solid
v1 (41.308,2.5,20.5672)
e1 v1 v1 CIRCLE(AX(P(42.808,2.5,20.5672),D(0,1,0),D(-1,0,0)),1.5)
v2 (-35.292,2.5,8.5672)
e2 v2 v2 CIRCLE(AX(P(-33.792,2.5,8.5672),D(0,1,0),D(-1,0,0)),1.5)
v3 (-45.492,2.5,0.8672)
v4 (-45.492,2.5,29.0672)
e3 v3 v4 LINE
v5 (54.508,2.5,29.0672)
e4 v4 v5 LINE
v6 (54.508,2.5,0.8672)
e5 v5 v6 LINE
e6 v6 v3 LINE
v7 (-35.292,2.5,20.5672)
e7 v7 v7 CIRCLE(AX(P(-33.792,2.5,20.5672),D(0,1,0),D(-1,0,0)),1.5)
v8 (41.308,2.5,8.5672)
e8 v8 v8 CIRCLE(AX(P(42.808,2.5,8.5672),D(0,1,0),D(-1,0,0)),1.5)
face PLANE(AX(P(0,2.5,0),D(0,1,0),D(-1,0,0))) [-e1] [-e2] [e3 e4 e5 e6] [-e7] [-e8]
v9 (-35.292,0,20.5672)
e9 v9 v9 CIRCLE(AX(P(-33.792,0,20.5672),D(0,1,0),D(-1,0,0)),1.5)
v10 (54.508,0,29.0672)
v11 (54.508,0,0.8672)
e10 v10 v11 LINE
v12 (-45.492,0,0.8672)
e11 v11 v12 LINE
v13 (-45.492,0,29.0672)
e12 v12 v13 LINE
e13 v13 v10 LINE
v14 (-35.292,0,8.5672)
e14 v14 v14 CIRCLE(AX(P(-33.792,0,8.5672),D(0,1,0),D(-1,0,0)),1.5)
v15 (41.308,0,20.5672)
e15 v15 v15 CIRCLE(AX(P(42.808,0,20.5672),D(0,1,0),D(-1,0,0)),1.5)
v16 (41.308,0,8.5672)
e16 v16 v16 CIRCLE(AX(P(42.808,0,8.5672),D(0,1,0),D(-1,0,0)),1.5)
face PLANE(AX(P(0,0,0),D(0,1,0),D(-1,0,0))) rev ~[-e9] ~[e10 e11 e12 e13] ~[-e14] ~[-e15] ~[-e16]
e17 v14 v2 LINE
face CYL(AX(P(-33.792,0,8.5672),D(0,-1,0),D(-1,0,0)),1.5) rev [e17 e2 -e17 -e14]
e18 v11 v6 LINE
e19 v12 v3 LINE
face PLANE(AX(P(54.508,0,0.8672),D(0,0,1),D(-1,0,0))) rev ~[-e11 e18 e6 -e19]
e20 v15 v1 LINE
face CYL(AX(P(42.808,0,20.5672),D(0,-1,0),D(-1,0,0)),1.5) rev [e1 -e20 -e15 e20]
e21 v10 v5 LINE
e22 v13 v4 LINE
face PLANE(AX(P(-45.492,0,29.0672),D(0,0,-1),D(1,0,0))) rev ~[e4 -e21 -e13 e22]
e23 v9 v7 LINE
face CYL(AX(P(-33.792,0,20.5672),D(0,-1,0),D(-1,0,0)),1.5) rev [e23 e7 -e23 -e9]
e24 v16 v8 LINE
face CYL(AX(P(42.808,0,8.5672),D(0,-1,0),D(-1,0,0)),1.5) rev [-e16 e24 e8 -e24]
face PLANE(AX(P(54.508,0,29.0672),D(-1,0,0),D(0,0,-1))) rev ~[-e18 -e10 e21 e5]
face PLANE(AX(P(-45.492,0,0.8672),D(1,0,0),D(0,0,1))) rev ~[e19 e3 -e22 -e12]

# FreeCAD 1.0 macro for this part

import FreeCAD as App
import Part
import Sketcher

V = App.Vector
Q = App.Units.Quantity

doc = App.newDocument("Part")
body = doc.addObject("PartDesign::Body", "Body")

# Sketch on XZ plane
sketch1 = body.newObject("Sketcher::SketchObject", "Sketch")
sketch1.AttachmentSupport = (doc.getObject("XZ_Plane"), [""])
sketch1.MapMode = "FlatFace"
sketch1.addGeometry([
    Part.LineSegment(V(-45.5, 0.9, 0), V(-45.5, 29.1, 0)),  # 0
    Part.LineSegment(V(-45.5, 29.1, 0), V(54.5, 29.1, 0)),  # 1
    Part.LineSegment(V(54.5, 29.1, 0), V(54.5, 0.9, 0)),  # 2
    Part.LineSegment(V(54.5, 0.9, 0), V(-45.5, 0.9, 0)),  # 3
    Part.Circle(V(42.8, 8.6, 0), V(0, 0, 1), 1.5),  # 4
    Part.Circle(V(-33.8, 8.6, 0), V(0, 0, 1), 1.5),  # 5
    Part.Circle(V(42.8, 20.6, 0), V(0, 0, 1), 1.5),  # 6
    Part.Circle(V(-33.8, 20.6, 0), V(0, 0, 1), 1.5),  # 7
], False)
sketch1.addConstraint([
    Sketcher.Constraint("Coincident", 0, 2, 1, 1),
    Sketcher.Constraint("Coincident", 1, 2, 2, 1),
    Sketcher.Constraint("Coincident", 2, 2, 3, 1),
    Sketcher.Constraint("Coincident", 3, 2, 0, 1),
    Sketcher.Constraint("Vertical", 0),
    Sketcher.Constraint("Horizontal", 1),
    Sketcher.Constraint("Vertical", 2),
    Sketcher.Constraint("Horizontal", 3),
    Sketcher.Constraint("Equal", 4, 5),
    Sketcher.Constraint("Equal", 5, 6),
    Sketcher.Constraint("Equal", 6, 7),
    Sketcher.Constraint("Horizontal", 4, 3, 5, 3),
    Sketcher.Constraint("Horizontal", 6, 3, 7, 3),
    Sketcher.Constraint("Vertical", 4, 3, 6, 3),
    Sketcher.Constraint("Vertical", 5, 3, 7, 3),
    Sketcher.Constraint("Diameter", 4, Q("3 mm")),
    Sketcher.Constraint("DistanceX", 1, 1, 1, 2, Q("100 mm")),
    Sketcher.Constraint("DistanceX", 5, 3, 4, 3, Q("76.6 mm")),
    Sketcher.Constraint("DistanceY", 0, 1, 0, 2, Q("28.2 mm")),
    Sketcher.Constraint("DistanceY", 4, 3, 6, 3, Q("12 mm")),
    Sketcher.Constraint("DistanceX", 0, 2, 7, 3, Q("11.7 mm")),
    Sketcher.Constraint("DistanceY", 7, 3, 0, 2, Q("8.5 mm")),
    Sketcher.Constraint("DistanceX", -1, 1, 4, 3, Q("42.808 mm")),
    Sketcher.Constraint("DistanceY", -1, 1, 4, 3, Q("8.5672 mm")),
])
pad1 = body.newObject("PartDesign::Pad", "Pad")
pad1.Profile = sketch1
pad1.Length = 2.5
pad1.Reversed = True

doc.recompute()
